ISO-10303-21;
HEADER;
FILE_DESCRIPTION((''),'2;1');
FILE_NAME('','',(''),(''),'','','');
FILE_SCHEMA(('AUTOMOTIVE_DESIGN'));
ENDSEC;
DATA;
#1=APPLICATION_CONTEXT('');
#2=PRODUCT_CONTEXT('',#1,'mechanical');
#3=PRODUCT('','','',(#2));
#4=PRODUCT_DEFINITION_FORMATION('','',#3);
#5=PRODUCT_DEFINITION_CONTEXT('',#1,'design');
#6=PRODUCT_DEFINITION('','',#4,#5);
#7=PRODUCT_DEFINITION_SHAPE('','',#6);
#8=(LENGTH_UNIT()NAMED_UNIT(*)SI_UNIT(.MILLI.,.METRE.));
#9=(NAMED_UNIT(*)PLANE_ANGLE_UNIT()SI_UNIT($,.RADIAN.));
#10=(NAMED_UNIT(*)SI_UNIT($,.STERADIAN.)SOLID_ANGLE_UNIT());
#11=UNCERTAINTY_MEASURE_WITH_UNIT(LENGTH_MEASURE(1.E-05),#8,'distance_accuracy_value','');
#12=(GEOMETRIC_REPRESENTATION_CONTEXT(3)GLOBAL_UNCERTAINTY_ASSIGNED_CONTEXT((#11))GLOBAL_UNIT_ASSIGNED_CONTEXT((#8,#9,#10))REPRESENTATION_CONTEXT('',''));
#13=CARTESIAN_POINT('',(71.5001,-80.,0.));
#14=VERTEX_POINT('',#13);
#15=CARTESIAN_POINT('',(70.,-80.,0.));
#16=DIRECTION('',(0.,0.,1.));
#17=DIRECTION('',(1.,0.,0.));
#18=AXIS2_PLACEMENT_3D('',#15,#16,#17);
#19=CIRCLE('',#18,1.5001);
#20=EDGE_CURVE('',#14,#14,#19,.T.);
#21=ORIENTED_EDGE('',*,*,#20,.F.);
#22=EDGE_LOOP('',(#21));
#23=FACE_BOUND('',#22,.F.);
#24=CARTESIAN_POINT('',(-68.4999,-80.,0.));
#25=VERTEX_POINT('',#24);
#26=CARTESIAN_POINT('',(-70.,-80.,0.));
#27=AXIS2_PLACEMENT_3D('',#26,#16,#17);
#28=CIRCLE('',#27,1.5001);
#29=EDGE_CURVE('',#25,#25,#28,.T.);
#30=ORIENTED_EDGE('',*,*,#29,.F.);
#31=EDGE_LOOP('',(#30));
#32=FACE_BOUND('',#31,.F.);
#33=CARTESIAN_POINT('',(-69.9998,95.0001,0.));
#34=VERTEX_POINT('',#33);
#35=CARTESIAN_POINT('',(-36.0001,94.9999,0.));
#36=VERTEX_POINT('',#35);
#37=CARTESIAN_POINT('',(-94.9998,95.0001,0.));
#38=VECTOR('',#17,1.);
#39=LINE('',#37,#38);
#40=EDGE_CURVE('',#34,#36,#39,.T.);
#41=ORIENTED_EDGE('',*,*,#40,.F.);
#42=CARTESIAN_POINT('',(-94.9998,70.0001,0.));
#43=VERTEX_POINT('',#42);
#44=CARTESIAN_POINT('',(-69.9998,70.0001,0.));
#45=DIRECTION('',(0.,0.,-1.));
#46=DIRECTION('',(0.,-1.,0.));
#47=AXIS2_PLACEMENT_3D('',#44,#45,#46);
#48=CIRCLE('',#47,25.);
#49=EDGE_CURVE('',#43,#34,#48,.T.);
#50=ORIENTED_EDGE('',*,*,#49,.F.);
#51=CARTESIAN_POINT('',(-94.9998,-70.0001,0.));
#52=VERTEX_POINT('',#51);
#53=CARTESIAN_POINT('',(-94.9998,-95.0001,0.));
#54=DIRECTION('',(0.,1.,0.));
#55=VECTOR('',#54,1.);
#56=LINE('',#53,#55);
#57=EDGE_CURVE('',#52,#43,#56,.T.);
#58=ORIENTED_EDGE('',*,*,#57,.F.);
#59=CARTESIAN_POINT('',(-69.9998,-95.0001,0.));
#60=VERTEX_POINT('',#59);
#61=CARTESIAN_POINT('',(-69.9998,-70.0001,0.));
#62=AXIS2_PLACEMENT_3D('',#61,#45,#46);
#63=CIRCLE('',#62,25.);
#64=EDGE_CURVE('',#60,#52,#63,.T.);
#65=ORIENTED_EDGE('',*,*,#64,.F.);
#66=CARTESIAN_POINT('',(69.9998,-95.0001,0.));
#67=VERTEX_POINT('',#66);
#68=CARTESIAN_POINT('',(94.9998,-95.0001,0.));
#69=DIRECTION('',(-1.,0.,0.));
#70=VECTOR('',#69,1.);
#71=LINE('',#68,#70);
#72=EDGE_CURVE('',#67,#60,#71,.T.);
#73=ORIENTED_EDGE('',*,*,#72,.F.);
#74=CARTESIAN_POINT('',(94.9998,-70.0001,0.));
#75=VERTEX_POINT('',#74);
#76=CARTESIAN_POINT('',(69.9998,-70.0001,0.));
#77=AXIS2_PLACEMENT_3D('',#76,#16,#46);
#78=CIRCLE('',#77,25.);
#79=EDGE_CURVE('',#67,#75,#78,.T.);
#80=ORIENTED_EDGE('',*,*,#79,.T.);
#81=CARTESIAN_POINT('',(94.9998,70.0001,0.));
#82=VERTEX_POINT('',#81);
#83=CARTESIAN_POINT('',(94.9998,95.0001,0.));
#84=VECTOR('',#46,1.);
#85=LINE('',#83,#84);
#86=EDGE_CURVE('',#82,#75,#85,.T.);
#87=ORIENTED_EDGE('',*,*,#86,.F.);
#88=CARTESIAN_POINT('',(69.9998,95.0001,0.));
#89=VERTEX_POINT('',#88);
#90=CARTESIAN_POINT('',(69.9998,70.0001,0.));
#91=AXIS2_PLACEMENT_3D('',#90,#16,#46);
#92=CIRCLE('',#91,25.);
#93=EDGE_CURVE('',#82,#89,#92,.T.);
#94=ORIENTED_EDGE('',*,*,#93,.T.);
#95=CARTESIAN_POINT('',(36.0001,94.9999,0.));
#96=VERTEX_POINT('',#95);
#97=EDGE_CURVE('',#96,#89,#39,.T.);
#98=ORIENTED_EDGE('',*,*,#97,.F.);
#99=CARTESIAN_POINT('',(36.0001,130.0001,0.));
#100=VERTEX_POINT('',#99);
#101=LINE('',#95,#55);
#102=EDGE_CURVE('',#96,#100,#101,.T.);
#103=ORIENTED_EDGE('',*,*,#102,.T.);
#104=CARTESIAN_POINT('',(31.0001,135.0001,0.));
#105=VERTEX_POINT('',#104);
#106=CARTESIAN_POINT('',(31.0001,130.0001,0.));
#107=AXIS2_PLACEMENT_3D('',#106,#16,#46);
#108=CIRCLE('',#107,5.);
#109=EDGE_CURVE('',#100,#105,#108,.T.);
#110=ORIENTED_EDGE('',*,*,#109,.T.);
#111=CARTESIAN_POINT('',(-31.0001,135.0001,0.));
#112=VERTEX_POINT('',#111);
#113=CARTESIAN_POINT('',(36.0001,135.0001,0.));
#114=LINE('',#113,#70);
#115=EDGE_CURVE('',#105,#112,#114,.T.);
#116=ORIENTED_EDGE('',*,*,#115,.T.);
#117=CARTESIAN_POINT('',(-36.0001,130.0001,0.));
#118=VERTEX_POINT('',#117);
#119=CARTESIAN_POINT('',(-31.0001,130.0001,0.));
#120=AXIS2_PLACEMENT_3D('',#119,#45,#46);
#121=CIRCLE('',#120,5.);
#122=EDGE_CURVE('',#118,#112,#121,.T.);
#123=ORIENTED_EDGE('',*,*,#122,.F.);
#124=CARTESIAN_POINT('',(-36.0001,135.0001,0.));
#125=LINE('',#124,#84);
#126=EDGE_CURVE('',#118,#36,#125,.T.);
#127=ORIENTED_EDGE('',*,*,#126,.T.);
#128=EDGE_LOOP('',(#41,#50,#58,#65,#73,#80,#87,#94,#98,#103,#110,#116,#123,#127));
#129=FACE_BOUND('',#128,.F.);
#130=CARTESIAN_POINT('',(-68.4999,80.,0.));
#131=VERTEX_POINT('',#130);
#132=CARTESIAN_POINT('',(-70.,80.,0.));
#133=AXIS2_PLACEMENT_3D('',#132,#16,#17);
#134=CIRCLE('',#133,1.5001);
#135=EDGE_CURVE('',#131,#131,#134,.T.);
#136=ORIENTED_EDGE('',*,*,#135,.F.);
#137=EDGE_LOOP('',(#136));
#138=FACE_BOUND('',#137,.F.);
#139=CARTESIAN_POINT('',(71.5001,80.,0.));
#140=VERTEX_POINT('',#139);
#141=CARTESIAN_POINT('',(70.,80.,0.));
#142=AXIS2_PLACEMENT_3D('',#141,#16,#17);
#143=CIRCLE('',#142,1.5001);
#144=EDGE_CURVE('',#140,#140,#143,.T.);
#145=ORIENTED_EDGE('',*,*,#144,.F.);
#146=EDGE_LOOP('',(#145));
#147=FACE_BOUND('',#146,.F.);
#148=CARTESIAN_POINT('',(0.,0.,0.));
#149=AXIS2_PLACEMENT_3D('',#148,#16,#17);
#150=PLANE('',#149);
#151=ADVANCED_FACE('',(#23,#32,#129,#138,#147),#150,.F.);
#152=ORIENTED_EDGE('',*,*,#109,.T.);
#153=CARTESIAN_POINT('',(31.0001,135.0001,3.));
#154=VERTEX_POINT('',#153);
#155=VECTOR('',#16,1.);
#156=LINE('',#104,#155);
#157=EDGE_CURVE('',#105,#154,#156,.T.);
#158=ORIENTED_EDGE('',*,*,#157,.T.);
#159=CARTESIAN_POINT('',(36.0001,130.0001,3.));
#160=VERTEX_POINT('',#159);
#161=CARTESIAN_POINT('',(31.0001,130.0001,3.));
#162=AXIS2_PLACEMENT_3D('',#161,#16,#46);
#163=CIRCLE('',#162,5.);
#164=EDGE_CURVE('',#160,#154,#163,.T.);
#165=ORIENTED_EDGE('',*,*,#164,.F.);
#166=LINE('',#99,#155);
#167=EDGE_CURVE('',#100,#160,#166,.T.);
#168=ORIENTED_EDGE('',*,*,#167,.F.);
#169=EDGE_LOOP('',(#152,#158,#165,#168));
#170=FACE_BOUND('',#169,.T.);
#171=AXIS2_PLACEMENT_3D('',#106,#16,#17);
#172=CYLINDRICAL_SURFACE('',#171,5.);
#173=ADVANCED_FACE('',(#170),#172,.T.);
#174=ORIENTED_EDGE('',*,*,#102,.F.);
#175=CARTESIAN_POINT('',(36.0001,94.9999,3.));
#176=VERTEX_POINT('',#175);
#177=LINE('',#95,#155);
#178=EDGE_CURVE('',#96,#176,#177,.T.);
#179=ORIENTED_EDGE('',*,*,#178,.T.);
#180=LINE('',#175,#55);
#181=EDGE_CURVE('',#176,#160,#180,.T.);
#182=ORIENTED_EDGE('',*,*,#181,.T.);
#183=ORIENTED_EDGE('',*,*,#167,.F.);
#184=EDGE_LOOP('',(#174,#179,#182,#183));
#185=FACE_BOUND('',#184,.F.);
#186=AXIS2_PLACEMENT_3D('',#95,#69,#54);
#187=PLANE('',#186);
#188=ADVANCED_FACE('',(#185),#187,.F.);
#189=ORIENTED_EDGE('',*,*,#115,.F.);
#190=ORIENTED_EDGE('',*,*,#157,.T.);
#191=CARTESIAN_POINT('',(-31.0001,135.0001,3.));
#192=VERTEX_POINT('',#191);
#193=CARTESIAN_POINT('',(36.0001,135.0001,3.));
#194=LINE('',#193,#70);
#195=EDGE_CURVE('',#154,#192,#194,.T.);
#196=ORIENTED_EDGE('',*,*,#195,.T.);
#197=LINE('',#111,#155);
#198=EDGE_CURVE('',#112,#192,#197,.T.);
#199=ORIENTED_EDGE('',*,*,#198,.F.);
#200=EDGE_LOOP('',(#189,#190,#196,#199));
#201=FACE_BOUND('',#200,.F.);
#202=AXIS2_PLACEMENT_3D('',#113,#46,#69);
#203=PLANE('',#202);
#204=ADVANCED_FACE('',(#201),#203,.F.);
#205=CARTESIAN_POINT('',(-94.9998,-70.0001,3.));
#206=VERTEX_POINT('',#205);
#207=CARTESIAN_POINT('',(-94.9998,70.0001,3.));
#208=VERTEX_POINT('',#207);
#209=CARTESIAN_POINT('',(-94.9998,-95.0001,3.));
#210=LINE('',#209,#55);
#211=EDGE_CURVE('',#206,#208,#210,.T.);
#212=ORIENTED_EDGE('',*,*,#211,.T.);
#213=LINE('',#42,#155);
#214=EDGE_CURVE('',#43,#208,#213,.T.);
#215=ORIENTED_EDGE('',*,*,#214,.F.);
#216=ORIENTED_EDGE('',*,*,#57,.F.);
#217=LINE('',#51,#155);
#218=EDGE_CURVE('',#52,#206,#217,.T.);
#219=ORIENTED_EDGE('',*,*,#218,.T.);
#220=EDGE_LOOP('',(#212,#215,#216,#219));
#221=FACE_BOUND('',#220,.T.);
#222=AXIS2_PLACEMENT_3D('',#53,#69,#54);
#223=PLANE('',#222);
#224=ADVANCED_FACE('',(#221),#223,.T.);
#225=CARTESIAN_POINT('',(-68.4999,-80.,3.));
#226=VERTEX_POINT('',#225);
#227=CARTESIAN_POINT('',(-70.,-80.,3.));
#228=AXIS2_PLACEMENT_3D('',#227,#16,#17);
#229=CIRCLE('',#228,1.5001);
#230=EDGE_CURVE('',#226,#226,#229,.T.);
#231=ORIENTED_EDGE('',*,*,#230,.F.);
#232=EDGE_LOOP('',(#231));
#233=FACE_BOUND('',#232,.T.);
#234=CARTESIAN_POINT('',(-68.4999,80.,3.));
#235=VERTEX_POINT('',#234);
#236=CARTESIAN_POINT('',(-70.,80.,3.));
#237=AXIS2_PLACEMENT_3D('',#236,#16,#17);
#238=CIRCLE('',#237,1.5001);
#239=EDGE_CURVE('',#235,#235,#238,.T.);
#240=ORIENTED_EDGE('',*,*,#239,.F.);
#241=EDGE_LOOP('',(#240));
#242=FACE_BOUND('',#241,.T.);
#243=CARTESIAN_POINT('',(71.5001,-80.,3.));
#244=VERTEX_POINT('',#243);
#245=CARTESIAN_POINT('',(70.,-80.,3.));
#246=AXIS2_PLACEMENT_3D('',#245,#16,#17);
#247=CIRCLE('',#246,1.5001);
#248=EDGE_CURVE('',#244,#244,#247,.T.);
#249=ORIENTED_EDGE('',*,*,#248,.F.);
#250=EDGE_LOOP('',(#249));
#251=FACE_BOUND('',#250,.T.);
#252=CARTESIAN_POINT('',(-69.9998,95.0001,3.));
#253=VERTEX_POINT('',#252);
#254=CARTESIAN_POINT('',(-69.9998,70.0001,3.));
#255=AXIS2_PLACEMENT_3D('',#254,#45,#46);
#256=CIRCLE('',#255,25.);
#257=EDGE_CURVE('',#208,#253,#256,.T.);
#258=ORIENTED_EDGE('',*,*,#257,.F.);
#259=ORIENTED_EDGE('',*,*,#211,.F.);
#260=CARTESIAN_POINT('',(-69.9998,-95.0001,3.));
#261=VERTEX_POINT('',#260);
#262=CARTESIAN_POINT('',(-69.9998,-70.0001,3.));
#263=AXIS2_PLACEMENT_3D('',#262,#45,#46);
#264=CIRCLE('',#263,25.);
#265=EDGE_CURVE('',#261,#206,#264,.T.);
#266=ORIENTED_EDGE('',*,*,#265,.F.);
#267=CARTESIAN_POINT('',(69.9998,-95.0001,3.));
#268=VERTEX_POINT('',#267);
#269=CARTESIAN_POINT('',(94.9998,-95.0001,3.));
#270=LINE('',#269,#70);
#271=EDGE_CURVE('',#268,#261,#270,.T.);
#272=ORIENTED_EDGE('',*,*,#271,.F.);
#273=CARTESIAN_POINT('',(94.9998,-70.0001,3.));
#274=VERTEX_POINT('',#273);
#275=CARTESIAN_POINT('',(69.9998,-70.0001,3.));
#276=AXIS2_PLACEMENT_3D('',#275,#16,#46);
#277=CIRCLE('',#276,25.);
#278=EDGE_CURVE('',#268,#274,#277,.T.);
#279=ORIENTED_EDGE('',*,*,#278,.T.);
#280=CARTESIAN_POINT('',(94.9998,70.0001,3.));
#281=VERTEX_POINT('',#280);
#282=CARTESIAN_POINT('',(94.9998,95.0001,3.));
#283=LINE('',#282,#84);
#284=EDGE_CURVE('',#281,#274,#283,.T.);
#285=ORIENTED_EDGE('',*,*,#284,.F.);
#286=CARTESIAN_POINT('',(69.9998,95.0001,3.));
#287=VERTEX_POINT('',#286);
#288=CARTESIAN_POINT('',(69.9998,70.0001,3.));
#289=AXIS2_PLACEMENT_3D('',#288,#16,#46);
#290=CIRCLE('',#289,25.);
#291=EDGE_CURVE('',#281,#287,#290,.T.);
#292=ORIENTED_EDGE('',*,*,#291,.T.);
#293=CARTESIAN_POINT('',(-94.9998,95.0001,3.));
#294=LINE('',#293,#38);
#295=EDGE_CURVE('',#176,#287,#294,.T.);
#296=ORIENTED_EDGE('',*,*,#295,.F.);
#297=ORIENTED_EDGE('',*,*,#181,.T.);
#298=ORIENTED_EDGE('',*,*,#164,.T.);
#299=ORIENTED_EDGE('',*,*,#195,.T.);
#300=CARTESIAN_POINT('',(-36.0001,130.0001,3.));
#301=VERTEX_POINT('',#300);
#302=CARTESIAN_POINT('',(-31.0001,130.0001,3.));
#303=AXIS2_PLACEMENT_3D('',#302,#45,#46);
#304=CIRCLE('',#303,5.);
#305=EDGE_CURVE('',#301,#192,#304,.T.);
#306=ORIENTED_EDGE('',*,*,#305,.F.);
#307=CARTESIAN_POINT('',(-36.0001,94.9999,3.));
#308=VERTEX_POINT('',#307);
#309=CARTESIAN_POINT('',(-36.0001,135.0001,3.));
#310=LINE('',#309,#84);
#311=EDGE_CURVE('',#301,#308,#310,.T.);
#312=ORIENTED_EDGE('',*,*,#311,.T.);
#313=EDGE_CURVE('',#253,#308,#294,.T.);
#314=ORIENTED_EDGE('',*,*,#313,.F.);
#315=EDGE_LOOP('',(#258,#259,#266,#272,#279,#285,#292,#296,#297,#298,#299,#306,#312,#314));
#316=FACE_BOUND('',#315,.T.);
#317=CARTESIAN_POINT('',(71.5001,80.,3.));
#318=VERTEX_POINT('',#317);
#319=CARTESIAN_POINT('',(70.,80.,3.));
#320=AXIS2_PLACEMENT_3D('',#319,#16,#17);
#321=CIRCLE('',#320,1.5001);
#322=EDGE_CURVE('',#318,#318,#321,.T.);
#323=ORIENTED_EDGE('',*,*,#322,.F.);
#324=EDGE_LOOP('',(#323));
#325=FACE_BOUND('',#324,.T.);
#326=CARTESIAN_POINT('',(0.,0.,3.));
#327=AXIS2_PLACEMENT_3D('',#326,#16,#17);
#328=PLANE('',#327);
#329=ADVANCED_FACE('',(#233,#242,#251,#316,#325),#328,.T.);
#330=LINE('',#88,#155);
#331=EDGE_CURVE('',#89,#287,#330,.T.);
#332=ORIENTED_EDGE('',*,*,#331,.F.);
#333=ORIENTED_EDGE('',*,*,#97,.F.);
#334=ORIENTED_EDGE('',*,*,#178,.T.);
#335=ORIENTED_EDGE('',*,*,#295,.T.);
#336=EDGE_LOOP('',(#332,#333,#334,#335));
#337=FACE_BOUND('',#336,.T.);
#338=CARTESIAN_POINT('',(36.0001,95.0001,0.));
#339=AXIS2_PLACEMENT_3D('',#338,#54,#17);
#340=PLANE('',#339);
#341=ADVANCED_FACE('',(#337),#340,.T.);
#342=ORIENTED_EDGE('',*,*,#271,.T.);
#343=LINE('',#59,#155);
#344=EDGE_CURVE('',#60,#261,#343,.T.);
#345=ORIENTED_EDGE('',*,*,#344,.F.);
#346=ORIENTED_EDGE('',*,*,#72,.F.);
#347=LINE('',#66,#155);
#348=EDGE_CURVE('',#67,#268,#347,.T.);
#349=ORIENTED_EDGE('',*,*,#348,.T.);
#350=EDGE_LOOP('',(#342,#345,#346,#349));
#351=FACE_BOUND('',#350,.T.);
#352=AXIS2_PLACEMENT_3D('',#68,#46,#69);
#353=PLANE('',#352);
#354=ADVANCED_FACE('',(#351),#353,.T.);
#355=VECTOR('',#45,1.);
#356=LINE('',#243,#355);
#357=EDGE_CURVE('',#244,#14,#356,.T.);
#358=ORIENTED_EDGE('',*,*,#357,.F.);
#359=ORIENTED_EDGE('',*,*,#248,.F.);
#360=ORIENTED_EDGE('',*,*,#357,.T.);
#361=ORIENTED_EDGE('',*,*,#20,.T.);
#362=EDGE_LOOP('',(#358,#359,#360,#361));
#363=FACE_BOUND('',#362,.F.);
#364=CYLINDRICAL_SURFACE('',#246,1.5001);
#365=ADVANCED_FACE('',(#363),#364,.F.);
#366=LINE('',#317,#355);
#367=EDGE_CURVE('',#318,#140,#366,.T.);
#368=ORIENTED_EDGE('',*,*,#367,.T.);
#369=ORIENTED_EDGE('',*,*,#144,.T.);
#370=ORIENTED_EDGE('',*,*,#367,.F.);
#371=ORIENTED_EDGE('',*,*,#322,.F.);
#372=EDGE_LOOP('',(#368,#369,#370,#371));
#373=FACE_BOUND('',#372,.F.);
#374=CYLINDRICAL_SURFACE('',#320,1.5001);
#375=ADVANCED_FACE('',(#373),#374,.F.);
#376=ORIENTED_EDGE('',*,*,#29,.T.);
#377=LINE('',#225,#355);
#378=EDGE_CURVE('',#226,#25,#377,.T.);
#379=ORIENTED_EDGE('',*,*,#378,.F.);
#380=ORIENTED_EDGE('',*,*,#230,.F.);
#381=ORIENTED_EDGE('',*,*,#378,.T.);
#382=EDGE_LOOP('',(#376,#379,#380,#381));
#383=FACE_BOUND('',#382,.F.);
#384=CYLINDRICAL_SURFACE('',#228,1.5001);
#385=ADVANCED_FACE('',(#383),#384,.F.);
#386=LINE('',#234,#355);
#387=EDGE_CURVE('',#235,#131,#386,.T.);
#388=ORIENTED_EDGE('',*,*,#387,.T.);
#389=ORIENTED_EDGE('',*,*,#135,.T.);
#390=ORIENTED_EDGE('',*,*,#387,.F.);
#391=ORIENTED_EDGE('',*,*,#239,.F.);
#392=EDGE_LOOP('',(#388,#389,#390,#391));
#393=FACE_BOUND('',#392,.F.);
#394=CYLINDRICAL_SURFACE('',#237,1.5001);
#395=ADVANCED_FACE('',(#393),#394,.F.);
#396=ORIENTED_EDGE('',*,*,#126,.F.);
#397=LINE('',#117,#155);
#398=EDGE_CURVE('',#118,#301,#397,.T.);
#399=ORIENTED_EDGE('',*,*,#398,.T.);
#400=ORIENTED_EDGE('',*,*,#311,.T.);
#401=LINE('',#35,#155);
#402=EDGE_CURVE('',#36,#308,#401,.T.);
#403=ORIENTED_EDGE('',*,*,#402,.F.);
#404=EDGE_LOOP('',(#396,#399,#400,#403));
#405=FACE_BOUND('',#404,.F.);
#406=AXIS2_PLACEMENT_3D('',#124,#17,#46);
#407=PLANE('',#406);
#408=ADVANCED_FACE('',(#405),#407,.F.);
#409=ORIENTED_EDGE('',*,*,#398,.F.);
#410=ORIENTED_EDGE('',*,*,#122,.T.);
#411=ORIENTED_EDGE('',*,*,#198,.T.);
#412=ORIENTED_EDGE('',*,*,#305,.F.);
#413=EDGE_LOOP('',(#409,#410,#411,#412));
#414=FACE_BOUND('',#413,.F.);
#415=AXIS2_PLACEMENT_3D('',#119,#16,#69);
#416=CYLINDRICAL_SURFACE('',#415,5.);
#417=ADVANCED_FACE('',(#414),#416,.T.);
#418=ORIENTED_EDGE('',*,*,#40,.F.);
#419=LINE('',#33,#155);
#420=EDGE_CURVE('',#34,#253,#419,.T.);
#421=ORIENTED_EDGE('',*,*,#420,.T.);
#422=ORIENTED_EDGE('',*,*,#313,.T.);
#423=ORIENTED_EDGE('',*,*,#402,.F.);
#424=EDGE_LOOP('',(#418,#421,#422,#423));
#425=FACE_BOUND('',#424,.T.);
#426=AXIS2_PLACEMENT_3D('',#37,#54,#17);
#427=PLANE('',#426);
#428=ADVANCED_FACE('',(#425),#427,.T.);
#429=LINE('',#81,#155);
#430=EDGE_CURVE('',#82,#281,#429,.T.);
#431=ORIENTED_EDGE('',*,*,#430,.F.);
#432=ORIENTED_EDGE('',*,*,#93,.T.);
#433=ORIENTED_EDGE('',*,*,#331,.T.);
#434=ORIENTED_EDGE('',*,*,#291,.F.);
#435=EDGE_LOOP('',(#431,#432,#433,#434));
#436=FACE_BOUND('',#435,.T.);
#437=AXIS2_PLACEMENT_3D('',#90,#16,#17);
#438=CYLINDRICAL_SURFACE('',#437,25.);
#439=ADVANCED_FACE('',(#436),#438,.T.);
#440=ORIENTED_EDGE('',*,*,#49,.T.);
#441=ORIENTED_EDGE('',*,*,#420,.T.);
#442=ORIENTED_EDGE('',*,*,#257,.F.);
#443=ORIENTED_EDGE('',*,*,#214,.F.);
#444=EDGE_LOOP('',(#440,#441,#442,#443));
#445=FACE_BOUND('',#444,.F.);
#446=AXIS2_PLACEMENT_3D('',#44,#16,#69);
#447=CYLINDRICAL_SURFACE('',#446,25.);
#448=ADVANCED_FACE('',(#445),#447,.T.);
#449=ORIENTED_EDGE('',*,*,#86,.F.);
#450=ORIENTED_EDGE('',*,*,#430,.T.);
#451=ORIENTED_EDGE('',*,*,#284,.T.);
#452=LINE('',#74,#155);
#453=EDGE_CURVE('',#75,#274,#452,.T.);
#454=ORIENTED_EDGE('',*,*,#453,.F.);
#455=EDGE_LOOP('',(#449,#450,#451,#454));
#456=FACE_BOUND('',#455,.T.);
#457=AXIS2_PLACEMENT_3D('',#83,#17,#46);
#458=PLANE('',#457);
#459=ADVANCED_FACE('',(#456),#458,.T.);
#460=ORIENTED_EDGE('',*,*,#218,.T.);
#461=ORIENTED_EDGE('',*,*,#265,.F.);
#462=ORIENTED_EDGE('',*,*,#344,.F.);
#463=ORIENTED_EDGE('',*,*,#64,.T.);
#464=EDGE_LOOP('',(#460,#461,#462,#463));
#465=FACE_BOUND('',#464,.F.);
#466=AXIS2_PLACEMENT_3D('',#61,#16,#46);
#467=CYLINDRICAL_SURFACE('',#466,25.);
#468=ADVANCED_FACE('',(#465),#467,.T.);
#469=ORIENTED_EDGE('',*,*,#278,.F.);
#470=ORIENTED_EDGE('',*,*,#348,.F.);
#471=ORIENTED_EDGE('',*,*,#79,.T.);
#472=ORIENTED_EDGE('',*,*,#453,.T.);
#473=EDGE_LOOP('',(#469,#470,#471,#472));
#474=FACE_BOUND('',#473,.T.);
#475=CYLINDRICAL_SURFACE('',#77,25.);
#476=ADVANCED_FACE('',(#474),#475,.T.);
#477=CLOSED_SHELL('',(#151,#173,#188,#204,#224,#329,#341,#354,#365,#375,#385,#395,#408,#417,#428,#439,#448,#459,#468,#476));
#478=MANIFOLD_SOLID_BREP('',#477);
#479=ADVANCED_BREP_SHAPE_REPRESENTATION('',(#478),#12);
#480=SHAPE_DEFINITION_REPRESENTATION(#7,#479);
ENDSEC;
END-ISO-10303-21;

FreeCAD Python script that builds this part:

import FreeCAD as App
import Part
import Sketcher
Q = App.Units.Quantity


def edges_at(feature, points):
    """Names of the edges that pass closest to the given points."""
    edges = feature.Shape.Edges
    near = lambda p: min(range(len(edges)), key=lambda i: edges[i].distToShape(Part.Vertex(*p))[0])
    return sorted({f"Edge{near(p) + 1}" for p in points})


def add_polygon(sketch, points):
    """Adds a closed chain of lines whose ends are joined by coincident constraints."""
    first, n = sketch.GeometryCount, len(points)
    for a, b in zip(points, points[1:] + points[:1]):
        sketch.addGeometry(Part.LineSegment(App.Vector(*a, 0), App.Vector(*b, 0)), False)
    for i in range(n):
        sketch.addConstraint(Sketcher.Constraint("Coincident", first + i, 2, first + (i + 1) % n, 1))

doc = App.newDocument("Part")
body = doc.addObject("PartDesign::Body", "Body")

# Sketch on XY plane
sketch1 = body.newObject("Sketcher::SketchObject", "Sketch")
sketch1.AttachmentSupport = (doc.getObject("XY_Plane"), [""])
sketch1.MapMode = "FlatFace"
add_polygon(sketch1, [(-95, -95), (95, -95), (95, 95), (36, 95), (36, 135), (-36, 135), (-36, 95), (-95, 95)])  # lines 0-7
sketch1.addConstraint(Sketcher.Constraint("Horizontal", 0))
sketch1.addConstraint(Sketcher.Constraint("Vertical", 1))
sketch1.addConstraint(Sketcher.Constraint("Horizontal", 2))
sketch1.addConstraint(Sketcher.Constraint("Vertical", 3))
sketch1.addConstraint(Sketcher.Constraint("Horizontal", 4))
sketch1.addConstraint(Sketcher.Constraint("Vertical", 5))
sketch1.addConstraint(Sketcher.Constraint("Horizontal", 6))
sketch1.addConstraint(Sketcher.Constraint("Vertical", 7))
sketch1.addConstraint(Sketcher.Constraint("Symmetric", 0, 2, 6, 2, -1, 1))
sketch1.addConstraint(Sketcher.Constraint("Symmetric", 2, 2, 5, 2, -2))
sketch1.addConstraint(Sketcher.Constraint("DistanceY", 0, 2, -1, 1, Q("95 mm")))
sketch1.addConstraint(Sketcher.Constraint("DistanceX", -1, 1, 2, 2, Q("36 mm")))
sketch1.addConstraint(Sketcher.Constraint("DistanceY", -1, 1, 3, 2, Q("135 mm")))
sketch1.addConstraint(Sketcher.Constraint("DistanceX", 4, 2, 1, 2, Q("131 mm")))
pad1 = body.newObject("PartDesign::Pad", "Pad")
pad1.Profile = sketch1
pad1.Length = 3

# Sketch on XY plane
sketch2 = body.newObject("Sketcher::SketchObject", "Sketch001")
sketch2.AttachmentSupport = (doc.getObject("XY_Plane"), [""])
sketch2.MapMode = "FlatFace"
sketch2.AttachmentOffset = App.Placement(App.Vector(0, 0, 3), App.Rotation())
sketch2.addGeometry(Part.Circle(App.Vector(70, 80, 0), App.Vector(0, 0, 1), 1.5), False)
sketch2.addGeometry(Part.Circle(App.Vector(70, -80, 0), App.Vector(0, 0, 1), 1.5), False)
sketch2.addGeometry(Part.Circle(App.Vector(-70, 80, 0), App.Vector(0, 0, 1), 1.5), False)
sketch2.addGeometry(Part.Circle(App.Vector(-70, -80, 0), App.Vector(0, 0, 1), 1.5), False)
sketch2.addConstraint(Sketcher.Constraint("Equal", 0, 1))
sketch2.addConstraint(Sketcher.Constraint("Equal", 1, 2))
sketch2.addConstraint(Sketcher.Constraint("Equal", 2, 3))
sketch2.addConstraint(Sketcher.Constraint("Symmetric", 1, 3, 2, 3, -1, 1))
sketch2.addConstraint(Sketcher.Constraint("Symmetric", 0, 3, 3, 3, -1, 1))
sketch2.addConstraint(Sketcher.Constraint("Symmetric", 0, 3, 2, 3, -2))
sketch2.addConstraint(Sketcher.Constraint("DistanceX", -1, 1, 0, 3, Q("70 mm")))
sketch2.addConstraint(Sketcher.Constraint("DistanceY", -1, 1, 0, 3, Q("80 mm")))
sketch2.addConstraint(Sketcher.Constraint("Diameter", 0, Q("3.0002 mm")))
pocket1 = body.newObject("PartDesign::Pocket", "Pocket")
pocket1.Profile = sketch2
pocket1.Length = 3
doc.recompute()

fillet = body.newObject("PartDesign::Fillet", "Fillet")
fillet.Base = (pocket1, edges_at(pocket1, [
    (-95, 95, 1.5),
    (95, 95, 1.5),
    (-95, -95, 1.5),
    (95, -95, 1.5),
]))
fillet.Radius = 25
doc.recompute()

fillet2 = body.newObject("PartDesign::Fillet", "Fillet001")
fillet2.Base = (fillet, edges_at(fillet, [(-36, 135, 1.5), (36, 135, 1.5)]))
fillet2.Radius = 5

doc.recompute()
